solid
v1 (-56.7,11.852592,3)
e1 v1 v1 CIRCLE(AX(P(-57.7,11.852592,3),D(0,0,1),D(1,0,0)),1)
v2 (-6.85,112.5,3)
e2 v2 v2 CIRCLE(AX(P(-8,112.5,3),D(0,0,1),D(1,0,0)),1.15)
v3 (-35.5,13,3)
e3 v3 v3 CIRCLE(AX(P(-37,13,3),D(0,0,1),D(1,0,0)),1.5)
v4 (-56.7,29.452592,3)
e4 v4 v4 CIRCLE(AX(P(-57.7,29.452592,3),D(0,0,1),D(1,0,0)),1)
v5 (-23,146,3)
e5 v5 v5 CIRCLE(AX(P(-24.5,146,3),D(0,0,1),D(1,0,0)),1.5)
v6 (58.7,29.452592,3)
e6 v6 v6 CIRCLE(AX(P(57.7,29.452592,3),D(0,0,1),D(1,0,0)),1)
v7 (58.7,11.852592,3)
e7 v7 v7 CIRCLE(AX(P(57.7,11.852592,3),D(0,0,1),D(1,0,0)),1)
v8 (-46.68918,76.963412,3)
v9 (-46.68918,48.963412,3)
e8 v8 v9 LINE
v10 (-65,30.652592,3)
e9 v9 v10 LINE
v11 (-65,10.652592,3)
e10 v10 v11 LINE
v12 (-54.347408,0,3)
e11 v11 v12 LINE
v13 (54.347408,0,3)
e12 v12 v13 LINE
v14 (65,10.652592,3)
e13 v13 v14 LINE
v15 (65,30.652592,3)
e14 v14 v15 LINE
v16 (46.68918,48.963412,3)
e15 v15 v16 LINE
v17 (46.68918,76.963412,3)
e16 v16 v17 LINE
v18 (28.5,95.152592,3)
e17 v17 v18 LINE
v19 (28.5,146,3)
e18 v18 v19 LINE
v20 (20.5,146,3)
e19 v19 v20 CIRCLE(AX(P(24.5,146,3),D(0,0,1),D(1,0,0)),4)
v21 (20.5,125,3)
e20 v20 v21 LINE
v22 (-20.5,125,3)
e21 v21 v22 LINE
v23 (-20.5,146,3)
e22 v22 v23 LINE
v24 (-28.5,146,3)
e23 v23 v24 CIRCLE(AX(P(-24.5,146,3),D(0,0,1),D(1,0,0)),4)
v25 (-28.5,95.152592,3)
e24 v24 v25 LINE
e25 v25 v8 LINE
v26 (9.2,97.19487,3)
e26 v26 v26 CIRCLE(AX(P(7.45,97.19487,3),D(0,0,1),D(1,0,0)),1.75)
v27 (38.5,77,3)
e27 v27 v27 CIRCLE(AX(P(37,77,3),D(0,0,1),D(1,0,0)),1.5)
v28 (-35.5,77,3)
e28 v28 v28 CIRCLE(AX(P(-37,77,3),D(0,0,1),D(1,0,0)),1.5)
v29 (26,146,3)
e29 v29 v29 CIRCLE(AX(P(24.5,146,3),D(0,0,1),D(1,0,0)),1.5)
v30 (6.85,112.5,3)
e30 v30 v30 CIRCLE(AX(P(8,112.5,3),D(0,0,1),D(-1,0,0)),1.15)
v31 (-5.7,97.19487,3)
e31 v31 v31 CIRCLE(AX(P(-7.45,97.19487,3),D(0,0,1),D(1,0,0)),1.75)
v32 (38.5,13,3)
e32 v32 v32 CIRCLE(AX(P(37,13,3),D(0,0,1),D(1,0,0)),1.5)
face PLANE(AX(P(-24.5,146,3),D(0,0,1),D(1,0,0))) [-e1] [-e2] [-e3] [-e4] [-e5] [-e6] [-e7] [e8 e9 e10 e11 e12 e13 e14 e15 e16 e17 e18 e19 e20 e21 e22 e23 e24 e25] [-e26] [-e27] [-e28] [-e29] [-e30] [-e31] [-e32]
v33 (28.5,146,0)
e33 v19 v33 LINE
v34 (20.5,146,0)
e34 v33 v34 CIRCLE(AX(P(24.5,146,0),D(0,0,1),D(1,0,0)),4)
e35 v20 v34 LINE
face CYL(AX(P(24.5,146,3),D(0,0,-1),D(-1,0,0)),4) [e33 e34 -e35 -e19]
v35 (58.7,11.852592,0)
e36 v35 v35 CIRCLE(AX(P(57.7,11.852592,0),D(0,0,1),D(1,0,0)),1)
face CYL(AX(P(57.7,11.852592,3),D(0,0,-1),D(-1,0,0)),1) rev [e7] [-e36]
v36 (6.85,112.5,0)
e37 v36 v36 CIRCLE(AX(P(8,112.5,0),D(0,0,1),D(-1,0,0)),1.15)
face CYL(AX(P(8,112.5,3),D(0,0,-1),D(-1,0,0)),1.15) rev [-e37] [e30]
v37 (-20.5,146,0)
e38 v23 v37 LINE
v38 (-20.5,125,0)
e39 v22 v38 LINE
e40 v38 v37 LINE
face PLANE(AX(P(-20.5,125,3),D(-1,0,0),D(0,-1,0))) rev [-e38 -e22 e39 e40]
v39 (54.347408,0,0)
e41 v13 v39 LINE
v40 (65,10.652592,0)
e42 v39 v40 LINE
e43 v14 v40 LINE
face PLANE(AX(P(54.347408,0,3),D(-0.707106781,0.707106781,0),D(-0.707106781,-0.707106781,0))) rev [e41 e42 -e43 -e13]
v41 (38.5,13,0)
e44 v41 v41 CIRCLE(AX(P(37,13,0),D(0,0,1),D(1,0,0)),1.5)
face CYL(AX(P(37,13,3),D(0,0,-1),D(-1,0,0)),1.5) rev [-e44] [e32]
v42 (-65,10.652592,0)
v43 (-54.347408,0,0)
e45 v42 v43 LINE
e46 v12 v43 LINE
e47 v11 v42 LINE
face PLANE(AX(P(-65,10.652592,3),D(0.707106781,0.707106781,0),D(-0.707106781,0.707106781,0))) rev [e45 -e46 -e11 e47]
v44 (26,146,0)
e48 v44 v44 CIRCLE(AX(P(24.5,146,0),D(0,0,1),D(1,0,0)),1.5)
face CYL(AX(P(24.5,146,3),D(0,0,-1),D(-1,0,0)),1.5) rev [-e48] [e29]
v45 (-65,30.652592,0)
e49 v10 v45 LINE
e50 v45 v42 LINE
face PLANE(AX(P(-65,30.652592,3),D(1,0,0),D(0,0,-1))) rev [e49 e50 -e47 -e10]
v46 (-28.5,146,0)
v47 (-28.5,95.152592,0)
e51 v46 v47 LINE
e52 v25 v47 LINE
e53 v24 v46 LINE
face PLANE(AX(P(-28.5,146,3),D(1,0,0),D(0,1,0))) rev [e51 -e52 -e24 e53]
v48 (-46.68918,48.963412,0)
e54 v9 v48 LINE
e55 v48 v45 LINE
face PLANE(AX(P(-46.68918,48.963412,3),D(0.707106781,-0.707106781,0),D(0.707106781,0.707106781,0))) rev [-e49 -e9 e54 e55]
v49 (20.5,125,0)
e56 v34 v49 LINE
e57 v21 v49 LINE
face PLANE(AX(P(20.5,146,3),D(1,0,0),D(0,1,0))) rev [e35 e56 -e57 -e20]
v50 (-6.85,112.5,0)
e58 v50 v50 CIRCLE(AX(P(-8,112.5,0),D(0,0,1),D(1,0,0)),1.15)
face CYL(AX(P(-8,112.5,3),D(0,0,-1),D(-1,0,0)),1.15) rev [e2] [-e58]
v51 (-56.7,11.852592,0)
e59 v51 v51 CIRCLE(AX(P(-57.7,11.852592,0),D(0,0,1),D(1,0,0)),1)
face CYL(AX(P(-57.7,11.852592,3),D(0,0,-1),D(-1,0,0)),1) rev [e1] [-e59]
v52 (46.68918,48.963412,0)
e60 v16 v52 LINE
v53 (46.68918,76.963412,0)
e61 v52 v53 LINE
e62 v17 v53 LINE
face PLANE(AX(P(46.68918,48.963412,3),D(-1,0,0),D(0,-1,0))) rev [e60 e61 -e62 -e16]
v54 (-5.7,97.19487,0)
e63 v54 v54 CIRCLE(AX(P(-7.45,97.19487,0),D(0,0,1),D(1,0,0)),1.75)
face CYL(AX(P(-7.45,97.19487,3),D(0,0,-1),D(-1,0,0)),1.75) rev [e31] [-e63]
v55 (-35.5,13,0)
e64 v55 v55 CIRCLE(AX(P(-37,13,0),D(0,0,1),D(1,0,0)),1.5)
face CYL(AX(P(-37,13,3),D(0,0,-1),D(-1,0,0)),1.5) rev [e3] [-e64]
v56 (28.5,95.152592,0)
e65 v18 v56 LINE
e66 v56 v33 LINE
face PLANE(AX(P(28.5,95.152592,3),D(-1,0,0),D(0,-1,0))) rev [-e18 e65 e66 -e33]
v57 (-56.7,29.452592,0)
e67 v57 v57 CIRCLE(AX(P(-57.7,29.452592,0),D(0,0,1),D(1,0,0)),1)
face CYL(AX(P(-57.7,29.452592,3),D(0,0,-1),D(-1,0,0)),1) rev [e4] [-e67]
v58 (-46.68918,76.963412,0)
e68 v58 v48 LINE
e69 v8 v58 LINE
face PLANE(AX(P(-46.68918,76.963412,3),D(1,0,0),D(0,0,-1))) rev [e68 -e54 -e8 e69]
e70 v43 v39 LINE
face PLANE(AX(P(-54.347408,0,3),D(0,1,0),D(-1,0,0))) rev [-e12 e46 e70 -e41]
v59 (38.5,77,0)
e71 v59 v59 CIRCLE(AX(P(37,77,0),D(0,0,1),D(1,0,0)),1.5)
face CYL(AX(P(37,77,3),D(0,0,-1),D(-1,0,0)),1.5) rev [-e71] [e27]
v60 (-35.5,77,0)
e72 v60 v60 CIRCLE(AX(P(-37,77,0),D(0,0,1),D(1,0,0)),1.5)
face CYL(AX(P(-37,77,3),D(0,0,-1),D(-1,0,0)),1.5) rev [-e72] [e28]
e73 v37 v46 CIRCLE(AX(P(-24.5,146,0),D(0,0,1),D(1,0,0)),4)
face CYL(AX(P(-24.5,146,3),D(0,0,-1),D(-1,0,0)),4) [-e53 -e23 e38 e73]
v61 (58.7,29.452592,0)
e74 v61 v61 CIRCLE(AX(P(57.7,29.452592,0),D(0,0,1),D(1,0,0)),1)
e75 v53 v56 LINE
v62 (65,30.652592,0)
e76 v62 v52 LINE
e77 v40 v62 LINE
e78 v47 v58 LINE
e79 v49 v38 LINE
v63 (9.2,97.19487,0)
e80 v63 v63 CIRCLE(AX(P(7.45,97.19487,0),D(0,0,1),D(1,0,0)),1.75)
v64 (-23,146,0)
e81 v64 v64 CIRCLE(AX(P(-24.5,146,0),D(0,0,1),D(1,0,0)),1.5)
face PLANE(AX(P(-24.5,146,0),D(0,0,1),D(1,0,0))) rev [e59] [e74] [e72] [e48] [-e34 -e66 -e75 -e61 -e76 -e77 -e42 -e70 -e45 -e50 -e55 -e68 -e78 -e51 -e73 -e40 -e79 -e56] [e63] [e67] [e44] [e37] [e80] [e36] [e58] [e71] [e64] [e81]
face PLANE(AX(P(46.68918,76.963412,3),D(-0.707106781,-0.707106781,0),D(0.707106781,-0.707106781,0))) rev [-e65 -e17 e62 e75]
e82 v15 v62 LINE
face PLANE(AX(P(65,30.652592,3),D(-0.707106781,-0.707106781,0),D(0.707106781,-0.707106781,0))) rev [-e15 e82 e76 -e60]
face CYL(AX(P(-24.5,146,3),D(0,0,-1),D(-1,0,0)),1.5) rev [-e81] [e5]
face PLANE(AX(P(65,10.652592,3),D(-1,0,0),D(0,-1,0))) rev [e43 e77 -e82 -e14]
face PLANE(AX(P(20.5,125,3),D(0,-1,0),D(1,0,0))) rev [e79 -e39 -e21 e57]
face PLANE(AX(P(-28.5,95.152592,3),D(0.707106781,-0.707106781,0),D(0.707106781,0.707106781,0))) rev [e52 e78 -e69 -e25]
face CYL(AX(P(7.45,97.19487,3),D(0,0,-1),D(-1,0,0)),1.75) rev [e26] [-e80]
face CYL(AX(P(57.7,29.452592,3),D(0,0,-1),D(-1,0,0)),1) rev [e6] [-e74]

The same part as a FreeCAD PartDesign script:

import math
import FreeCAD as App
import Part
import Sketcher
from FreeCAD import Vector
Q = App.Units.Quantity

doc = App.newDocument("Part")
body = doc.addObject("PartDesign::Body", "Body")

# Sketch on XY plane
sketch1 = doc.addObject("Sketcher::SketchObject", "Sketch")
body.addObject(sketch1)
sketch1.AttachmentSupport = (doc.XY_Plane, [""])
sketch1.MapMode = "FlatFace"
sketch1.addGeometry(Part.LineSegment(Vector(-46.7, 49, 0), Vector(-65, 30.7, 0)), False)
sketch1.addGeometry(Part.LineSegment(Vector(-65, 30.7, 0), Vector(-65, 10.7, 0)), False)
sketch1.addGeometry(Part.LineSegment(Vector(-65, 10.7, 0), Vector(-54.3, 0, 0)), False)
sketch1.addGeometry(Part.LineSegment(Vector(-54.3, 0, 0), Vector(54.3, 0, 0)), False)
sketch1.addGeometry(Part.LineSegment(Vector(54.3, 0, 0), Vector(65, 10.7, 0)), False)
sketch1.addGeometry(Part.LineSegment(Vector(65, 10.7, 0), Vector(65, 30.7, 0)), False)
sketch1.addGeometry(Part.LineSegment(Vector(65, 30.7, 0), Vector(46.7, 49, 0)), False)
sketch1.addGeometry(Part.LineSegment(Vector(46.7, 49, 0), Vector(46.7, 77, 0)), False)
sketch1.addGeometry(Part.LineSegment(Vector(46.7, 77, 0), Vector(28.5, 95.2, 0)), False)
sketch1.addGeometry(Part.LineSegment(Vector(28.5, 95.2, 0), Vector(28.5, 146, 0)), False)
sketch1.addGeometry(Part.ArcOfCircle(Part.Circle(Vector(24.5, 146, 0), Vector(0, 0, 1), 4), math.radians(0), math.radians(180)), False)
sketch1.addGeometry(Part.LineSegment(Vector(20.5, 146, 0), Vector(20.5, 125, 0)), False)
sketch1.addGeometry(Part.LineSegment(Vector(20.5, 125, 0), Vector(-20.5, 125, 0)), False)
sketch1.addGeometry(Part.LineSegment(Vector(-20.5, 125, 0), Vector(-20.5, 146, 0)), False)
sketch1.addGeometry(Part.ArcOfCircle(Part.Circle(Vector(-24.5, 146, 0), Vector(0, 0, 1), 4), math.radians(0), math.radians(180)), False)
sketch1.addGeometry(Part.LineSegment(Vector(-28.5, 146, 0), Vector(-28.5, 95.2, 0)), False)
sketch1.addGeometry(Part.LineSegment(Vector(-28.5, 95.2, 0), Vector(-46.7, 77, 0)), False)
sketch1.addGeometry(Part.LineSegment(Vector(-46.7, 77, 0), Vector(-46.7, 49, 0)), False)
sketch1.addGeometry(Part.Circle(Vector(-57.7, 11.9, 0), Vector(0, 0, 1), 1), False)
sketch1.addGeometry(Part.Circle(Vector(-37, 13, 0), Vector(0, 0, 1), 1.5), False)
sketch1.addGeometry(Part.Circle(Vector(-57.7, 29.5, 0), Vector(0, 0, 1), 1), False)
sketch1.addGeometry(Part.Circle(Vector(-37, 77, 0), Vector(0, 0, 1), 1.5), False)
sketch1.addGeometry(Part.Circle(Vector(37, 13, 0), Vector(0, 0, 1), 1.5), False)
sketch1.addGeometry(Part.Circle(Vector(57.7, 11.9, 0), Vector(0, 0, 1), 1), False)
sketch1.addGeometry(Part.Circle(Vector(57.7, 29.5, 0), Vector(0, 0, 1), 1), False)
sketch1.addGeometry(Part.Circle(Vector(37, 77, 0), Vector(0, 0, 1), 1.5), False)
sketch1.addGeometry(Part.Circle(Vector(-7.5, 97.2, 0), Vector(0, 0, 1), 1.8), False)
sketch1.addGeometry(Part.Circle(Vector(-8, 112.5, 0), Vector(0, 0, 1), 1.1), False)
sketch1.addGeometry(Part.Circle(Vector(-24.5, 146, 0), Vector(0, 0, 1), 1.5), False)
sketch1.addGeometry(Part.Circle(Vector(7.5, 97.2, 0), Vector(0, 0, 1), 1.8), False)
sketch1.addGeometry(Part.Circle(Vector(8, 112.5, 0), Vector(0, 0, 1), 1.1), False)
sketch1.addGeometry(Part.Circle(Vector(24.5, 146, 0), Vector(0, 0, 1), 1.5), False)
sketch1.addConstraint(Sketcher.Constraint("Coincident", 0, 2, 1, 1))
sketch1.addConstraint(Sketcher.Constraint("Coincident", 1, 2, 2, 1))
sketch1.addConstraint(Sketcher.Constraint("Coincident", 2, 2, 3, 1))
sketch1.addConstraint(Sketcher.Constraint("Coincident", 3, 2, 4, 1))
sketch1.addConstraint(Sketcher.Constraint("Coincident", 4, 2, 5, 1))
sketch1.addConstraint(Sketcher.Constraint("Coincident", 5, 2, 6, 1))
sketch1.addConstraint(Sketcher.Constraint("Coincident", 6, 2, 7, 1))
sketch1.addConstraint(Sketcher.Constraint("Coincident", 7, 2, 8, 1))
sketch1.addConstraint(Sketcher.Constraint("Coincident", 8, 2, 9, 1))
sketch1.addConstraint(Sketcher.Constraint("Tangent", 9, 2, 10, 1))
sketch1.addConstraint(Sketcher.Constraint("Tangent", 10, 2, 11, 1))
sketch1.addConstraint(Sketcher.Constraint("Coincident", 11, 2, 12, 1))
sketch1.addConstraint(Sketcher.Constraint("Coincident", 12, 2, 13, 1))
sketch1.addConstraint(Sketcher.Constraint("Tangent", 13, 2, 14, 1))
sketch1.addConstraint(Sketcher.Constraint("Tangent", 14, 2, 15, 1))
sketch1.addConstraint(Sketcher.Constraint("Coincident", 15, 2, 16, 1))
sketch1.addConstraint(Sketcher.Constraint("Coincident", 16, 2, 17, 1))
sketch1.addConstraint(Sketcher.Constraint("Coincident", 17, 2, 0, 1))
sketch1.addConstraint(Sketcher.Constraint("Vertical", 1))
sketch1.addConstraint(Sketcher.Constraint("Horizontal", 3))
sketch1.addConstraint(Sketcher.Constraint("Vertical", 5))
sketch1.addConstraint(Sketcher.Constraint("Vertical", 7))
sketch1.addConstraint(Sketcher.Constraint("Vertical", 9))
sketch1.addConstraint(Sketcher.Constraint("Vertical", 11))
sketch1.addConstraint(Sketcher.Constraint("Horizontal", 12))
sketch1.addConstraint(Sketcher.Constraint("Vertical", 13))
sketch1.addConstraint(Sketcher.Constraint("Vertical", 15))
sketch1.addConstraint(Sketcher.Constraint("Vertical", 17))
sketch1.addConstraint(Sketcher.Constraint("Coincident", 28, 3, 14, 3))
sketch1.addConstraint(Sketcher.Constraint("Coincident", 31, 3, 10, 3))
sketch1.addConstraint(Sketcher.Constraint("Equal", 10, 14))
sketch1.addConstraint(Sketcher.Constraint("Equal", 18, 20))
sketch1.addConstraint(Sketcher.Constraint("Equal", 19, 21))
sketch1.addConstraint(Sketcher.Constraint("Equal", 21, 22))
sketch1.addConstraint(Sketcher.Constraint("Equal", 20, 23))
sketch1.addConstraint(Sketcher.Constraint("Equal", 23, 24))
sketch1.addConstraint(Sketcher.Constraint("Equal", 22, 25))
sketch1.addConstraint(Sketcher.Constraint("Equal", 25, 28))
sketch1.addConstraint(Sketcher.Constraint("Equal", 26, 29))
sketch1.addConstraint(Sketcher.Constraint("Equal", 27, 30))
sketch1.addConstraint(Sketcher.Constraint("Equal", 28, 31))
sketch1.addConstraint(Sketcher.Constraint("Symmetric", 2, 2, 3, 2, -1, 1))
sketch1.addConstraint(Sketcher.Constraint("Symmetric", 10, 3, 14, 3, -2))
sketch1.addConstraint(Sketcher.Constraint("Symmetric", 19, 3, 22, 3, -2))
sketch1.addConstraint(Sketcher.Constraint("Symmetric", 18, 3, 23, 3, -2))
sketch1.addConstraint(Sketcher.Constraint("Symmetric", 20, 3, 24, 3, -2))
sketch1.addConstraint(Sketcher.Constraint("Symmetric", 21, 3, 25, 3, -2))
sketch1.addConstraint(Sketcher.Constraint("Symmetric", 26, 3, 29, 3, -2))
sketch1.addConstraint(Sketcher.Constraint("Symmetric", 27, 3, 30, 3, -2))
sketch1.addConstraint(Sketcher.Constraint("Symmetric", 1, 2, 4, 2, -2))
sketch1.addConstraint(Sketcher.Constraint("Symmetric", 7, 2, 16, 2, -2))
sketch1.addConstraint(Sketcher.Constraint("Perpendicular", 0, 2))
sketch1.addConstraint(Sketcher.Constraint("Perpendicular", 2, 4))
sketch1.addConstraint(Sketcher.Constraint("Perpendicular", 4, 6))
sketch1.addConstraint(Sketcher.Constraint("Parallel", 6, 8))
sketch1.addConstraint(Sketcher.Constraint("Perpendicular", 8, 16))
sketch1.addConstraint(Sketcher.Constraint("Horizontal", 0, 2, 5, 2))
sketch1.addConstraint(Sketcher.Constraint("Vertical", 18, 3, 20, 3))
sketch1.addConstraint(Sketcher.Constraint("Vertical", 19, 3, 21, 3))
sketch1.addConstraint(Sketcher.Constraint("Diameter", 18, Q("2 mm")))
sketch1.addConstraint(Sketcher.Constraint("Diameter", 19, Q("3 mm")))
sketch1.addConstraint(Sketcher.Constraint("Radius", 10, Q("4 mm")))
sketch1.addConstraint(Sketcher.Constraint("Diameter", 26, Q("3.5 mm")))
sketch1.addConstraint(Sketcher.Constraint("Diameter", 27, Q("2.3 mm")))
sketch1.addConstraint(Sketcher.Constraint("DistanceX", 12, 2, 12, 1, Q("41 mm")))
sketch1.addConstraint(Sketcher.Constraint("DistanceY", 1, 2, 1, 1, Q("20 mm")))
sketch1.addConstraint(Sketcher.Constraint("DistanceY", 7, 1, 7, 2, Q("28 mm")))
sketch1.addConstraint(Sketcher.Constraint("DistanceY", 11, 2, 11, 1, Q("21 mm")))
sketch1.addConstraint(Sketcher.Constraint("DistanceY", -1, 1, 10, 3, Q("146 mm")))
sketch1.addConstraint(Sketcher.Constraint("DistanceX", 19, 3, -1, 1, Q("37 mm")))
sketch1.addConstraint(Sketcher.Constraint("DistanceY", -1, 1, 19, 3, Q("13 mm")))
sketch1.addConstraint(Sketcher.Constraint("DistanceY", -1, 1, 21, 3, Q("77 mm")))
sketch1.addConstraint(Sketcher.Constraint("DistanceX", 27, 3, -1, 1, Q("8 mm")))
sketch1.addConstraint(Sketcher.Constraint("DistanceX", 0, 2, -1, 1, Q("65 mm")))
sketch1.addConstraint(Sketcher.Constraint("DistanceX", 18, 3, -1, 1, Q("57.7 mm")))
sketch1.addConstraint(Sketcher.Constraint("DistanceY", -1, 1, 27, 3, Q("112.5 mm")))
sketch1.addConstraint(Sketcher.Constraint("DistanceY", 18, 3, 20, 3, Q("17.6 mm")))
sketch1.addConstraint(Sketcher.Constraint("DistanceX", 26, 3, 29, 3, Q("14.9 mm")))
sketch1.addConstraint(Sketcher.Constraint("DistanceY", 20, 3, 0, 2, Q("1.2 mm")))
sketch1.addConstraint(Sketcher.Constraint("Distance", 0, Q("25.89541 mm")))
sketch1.addConstraint(Sketcher.Constraint("Distance", 2, Q("15.06504 mm")))
sketch1.addConstraint(Sketcher.Constraint("DistanceY", -1, 1, 26, 3, Q("97.19487 mm")))
pad1 = doc.addObject("PartDesign::Pad", "Pad")
body.addObject(pad1)
pad1.Profile = sketch1
pad1.Length = 3

doc.recompute()
